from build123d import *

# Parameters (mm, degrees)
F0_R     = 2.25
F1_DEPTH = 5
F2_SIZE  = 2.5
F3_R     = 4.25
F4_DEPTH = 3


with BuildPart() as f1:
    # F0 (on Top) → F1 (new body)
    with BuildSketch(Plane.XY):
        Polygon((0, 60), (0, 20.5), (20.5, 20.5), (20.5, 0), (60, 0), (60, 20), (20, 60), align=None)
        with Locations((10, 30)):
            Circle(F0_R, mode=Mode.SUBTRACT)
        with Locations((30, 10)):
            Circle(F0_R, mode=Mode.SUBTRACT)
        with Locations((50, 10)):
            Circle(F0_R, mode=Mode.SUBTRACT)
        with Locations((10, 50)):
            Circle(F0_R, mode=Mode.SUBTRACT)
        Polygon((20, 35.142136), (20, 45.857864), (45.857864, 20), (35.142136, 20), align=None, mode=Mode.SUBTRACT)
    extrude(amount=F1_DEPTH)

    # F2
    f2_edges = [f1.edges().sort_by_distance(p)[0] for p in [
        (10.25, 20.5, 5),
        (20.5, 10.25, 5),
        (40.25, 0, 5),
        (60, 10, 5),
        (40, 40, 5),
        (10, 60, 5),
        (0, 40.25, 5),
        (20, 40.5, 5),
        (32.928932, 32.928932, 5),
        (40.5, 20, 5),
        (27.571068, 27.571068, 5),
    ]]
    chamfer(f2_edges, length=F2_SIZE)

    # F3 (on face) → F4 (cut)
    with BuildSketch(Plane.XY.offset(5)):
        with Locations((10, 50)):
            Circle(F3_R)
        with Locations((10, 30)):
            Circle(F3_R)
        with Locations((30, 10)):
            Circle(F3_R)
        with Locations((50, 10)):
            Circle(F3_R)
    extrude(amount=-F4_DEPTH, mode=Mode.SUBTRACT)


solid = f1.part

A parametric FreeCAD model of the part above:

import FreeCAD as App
import Part
import Sketcher

V = App.Vector
Q = App.Units.Quantity


def edges_at(feature, points):
    """Names of the edges that pass closest to the given points."""
    edges = feature.Shape.Edges
    near = lambda p: min(range(len(edges)), key=lambda i: edges[i].distToShape(Part.Vertex(*p))[0])
    return sorted({f"Edge{near(p) + 1}" for p in points})

doc = App.newDocument("Part")
body = doc.addObject("PartDesign::Body", "Body")

sketch1 = body.newObject("Sketcher::SketchObject", "Sketch")
sketch1.AttachmentSupport = (doc.getObject("XY_Plane"), [""])
sketch1.MapMode = "FlatFace"
sketch1.addGeometry(Part.LineSegment(V(0, 60, 0), V(0, 20.5, 0)), False)
sketch1.addGeometry(Part.LineSegment(V(0, 20.5, 0), V(20.5, 20.5, 0)), False)
sketch1.addGeometry(Part.LineSegment(V(20.5, 20.5, 0), V(20.5, 0, 0)), False)
sketch1.addGeometry(Part.LineSegment(V(20.5, 0, 0), V(60, 0, 0)), False)
sketch1.addGeometry(Part.LineSegment(V(60, 0, 0), V(60, 20, 0)), False)
sketch1.addGeometry(Part.LineSegment(V(60, 20, 0), V(20, 60, 0)), False)
sketch1.addGeometry(Part.LineSegment(V(20, 60, 0), V(0, 60, 0)), False)
sketch1.addGeometry(Part.Circle(V(30, 10, 0), V(0, 0, 1), 2.2), False)
sketch1.addGeometry(Part.Circle(V(50, 10, 0), V(0, 0, 1), 2.2), False)
sketch1.addGeometry(Part.Circle(V(10, 30, 0), V(0, 0, 1), 2.2), False)
sketch1.addGeometry(Part.Circle(V(10, 50, 0), V(0, 0, 1), 2.2), False)
sketch1.addGeometry(Part.LineSegment(V(35.1, 20, 0), V(20, 35.1, 0)), False)
sketch1.addGeometry(Part.LineSegment(V(20, 35.1, 0), V(20, 45.9, 0)), False)
sketch1.addGeometry(Part.LineSegment(V(20, 45.9, 0), V(45.9, 20, 0)), False)
sketch1.addGeometry(Part.LineSegment(V(45.9, 20, 0), V(35.1, 20, 0)), False)
sketch1.addConstraint(Sketcher.Constraint("Coincident", 0, 2, 1, 1))
sketch1.addConstraint(Sketcher.Constraint("Coincident", 1, 2, 2, 1))
sketch1.addConstraint(Sketcher.Constraint("Coincident", 2, 2, 3, 1))
sketch1.addConstraint(Sketcher.Constraint("Coincident", 3, 2, 4, 1))
sketch1.addConstraint(Sketcher.Constraint("Coincident", 4, 2, 5, 1))
sketch1.addConstraint(Sketcher.Constraint("Coincident", 5, 2, 6, 1))
sketch1.addConstraint(Sketcher.Constraint("Coincident", 6, 2, 0, 1))
sketch1.addConstraint(Sketcher.Constraint("Coincident", 11, 2, 12, 1))
sketch1.addConstraint(Sketcher.Constraint("Coincident", 12, 2, 13, 1))
sketch1.addConstraint(Sketcher.Constraint("Coincident", 13, 2, 14, 1))
sketch1.addConstraint(Sketcher.Constraint("Coincident", 14, 2, 11, 1))
sketch1.addConstraint(Sketcher.Constraint("Vertical", 0))
sketch1.addConstraint(Sketcher.Constraint("Horizontal", 1))
sketch1.addConstraint(Sketcher.Constraint("Vertical", 2))
sketch1.addConstraint(Sketcher.Constraint("Horizontal", 3))
sketch1.addConstraint(Sketcher.Constraint("Vertical", 4))
sketch1.addConstraint(Sketcher.Constraint("Horizontal", 6))
sketch1.addConstraint(Sketcher.Constraint("Vertical", 12))
sketch1.addConstraint(Sketcher.Constraint("Horizontal", 14))
sketch1.addConstraint(Sketcher.Constraint("Equal", 7, 8))
sketch1.addConstraint(Sketcher.Constraint("Equal", 8, 9))
sketch1.addConstraint(Sketcher.Constraint("Equal", 9, 10))
sketch1.addConstraint(Sketcher.Constraint("PointOnObject", 0, 2, -2))
sketch1.addConstraint(Sketcher.Constraint("PointOnObject", 2, 2, -1))
sketch1.addConstraint(Sketcher.Constraint("Parallel", 5, 11))
sketch1.addConstraint(Sketcher.Constraint("Parallel", 11, 13))
sketch1.addConstraint(Sketcher.Constraint("Horizontal", 7, 3, 8, 3))
sketch1.addConstraint(Sketcher.Constraint("Horizontal", 4, 2, 13, 2))
sketch1.addConstraint(Sketcher.Constraint("Vertical", 9, 3, 10, 3))
sketch1.addConstraint(Sketcher.Constraint("Vertical", 5, 2, 11, 2))
sketch1.addConstraint(Sketcher.Constraint("Equal", 3, 0))
sketch1.addConstraint(Sketcher.Constraint("Equal", 1, 2))
sketch1.addConstraint(Sketcher.Constraint("Equal", 6, 4))
sketch1.addConstraint(Sketcher.Constraint("Diameter", 7, Q("4.5 mm")))
sketch1.addConstraint(Sketcher.Constraint("DistanceX", 6, 2, 6, 1, Q("20 mm")))
sketch1.addConstraint(Sketcher.Constraint("DistanceX", 1, 1, 1, 2, Q("20.5 mm")))
sketch1.addConstraint(Sketcher.Constraint("DistanceX", 3, 1, 3, 2, Q("39.5 mm")))
sketch1.addConstraint(Sketcher.Constraint("DistanceX", -1, 1, 7, 3, Q("30 mm")))
sketch1.addConstraint(Sketcher.Constraint("DistanceY", -1, 1, 7, 3, Q("10 mm")))
sketch1.addConstraint(Sketcher.Constraint("DistanceX", -1, 1, 8, 3, Q("50 mm")))
sketch1.addConstraint(Sketcher.Constraint("DistanceX", -1, 1, 9, 3, Q("10 mm")))
sketch1.addConstraint(Sketcher.Constraint("DistanceY", -1, 1, 9, 3, Q("30 mm")))
sketch1.addConstraint(Sketcher.Constraint("DistanceY", -1, 1, 10, 3, Q("50 mm")))
sketch1.addConstraint(Sketcher.Constraint("Distance", 13, Q("36.568542 mm")))
sketch1.addConstraint(Sketcher.Constraint("DistanceX", 14, 2, 14, 1, Q("10.715728 mm")))
pad1 = body.newObject("PartDesign::Pad", "Pad")
pad1.Profile = sketch1
pad1.Length = 5
doc.recompute()

chamfer = body.newObject("PartDesign::Chamfer", "Chamfer")
chamfer.Base = (pad1, edges_at(pad1, [
    (10.25, 20.5, 5),
    (20.5, 10.25, 5),
    (40.25, 0, 5),
    (60, 10, 5),
    (40, 40, 5),
    (10, 60, 5),
    (0, 40.25, 5),
    (20, 40.5, 5),
    (32.929, 32.929, 5),
    (40.5, 20, 5),
    (27.571, 27.571, 5),
]))
chamfer.Size = 2.5

sketch2 = body.newObject("Sketcher::SketchObject", "Sketch001")
sketch2.AttachmentSupport = (doc.getObject("XY_Plane"), [""])
sketch2.MapMode = "FlatFace"
sketch2.AttachmentOffset = App.Placement(V(0, 0, 5), App.Rotation())
sketch2.addGeometry(Part.Circle(V(10, 50, 0), V(0, 0, 1), 4.2), False)
sketch2.addGeometry(Part.Circle(V(10, 30, 0), V(0, 0, 1), 4.2), False)
sketch2.addGeometry(Part.Circle(V(30, 10, 0), V(0, 0, 1), 4.2), False)
sketch2.addGeometry(Part.Circle(V(50, 10, 0), V(0, 0, 1), 4.2), False)
sketch2.addConstraint(Sketcher.Constraint("Equal", 0, 1))
sketch2.addConstraint(Sketcher.Constraint("Equal", 1, 2))
sketch2.addConstraint(Sketcher.Constraint("Equal", 2, 3))
sketch2.addConstraint(Sketcher.Constraint("Horizontal", 2, 3, 3, 3))
sketch2.addConstraint(Sketcher.Constraint("Vertical", 0, 3, 1, 3))
sketch2.addConstraint(Sketcher.Constraint("Diameter", 0, Q("8.5 mm")))
sketch2.addConstraint(Sketcher.Constraint("DistanceX", -1, 1, 0, 3, Q("10 mm")))
sketch2.addConstraint(Sketcher.Constraint("DistanceY", -1, 1, 0, 3, Q("50 mm")))
sketch2.addConstraint(Sketcher.Constraint("DistanceY", -1, 1, 1, 3, Q("30 mm")))
sketch2.addConstraint(Sketcher.Constraint("DistanceX", -1, 1, 2, 3, Q("30 mm")))
sketch2.addConstraint(Sketcher.Constraint("DistanceY", -1, 1, 2, 3, Q("10 mm")))
sketch2.addConstraint(Sketcher.Constraint("DistanceX", -1, 1, 3, 3, Q("50 mm")))
pocket1 = body.newObject("PartDesign::Pocket", "Pocket")
pocket1.Profile = sketch2
pocket1.Length = 3

doc.recompute()
